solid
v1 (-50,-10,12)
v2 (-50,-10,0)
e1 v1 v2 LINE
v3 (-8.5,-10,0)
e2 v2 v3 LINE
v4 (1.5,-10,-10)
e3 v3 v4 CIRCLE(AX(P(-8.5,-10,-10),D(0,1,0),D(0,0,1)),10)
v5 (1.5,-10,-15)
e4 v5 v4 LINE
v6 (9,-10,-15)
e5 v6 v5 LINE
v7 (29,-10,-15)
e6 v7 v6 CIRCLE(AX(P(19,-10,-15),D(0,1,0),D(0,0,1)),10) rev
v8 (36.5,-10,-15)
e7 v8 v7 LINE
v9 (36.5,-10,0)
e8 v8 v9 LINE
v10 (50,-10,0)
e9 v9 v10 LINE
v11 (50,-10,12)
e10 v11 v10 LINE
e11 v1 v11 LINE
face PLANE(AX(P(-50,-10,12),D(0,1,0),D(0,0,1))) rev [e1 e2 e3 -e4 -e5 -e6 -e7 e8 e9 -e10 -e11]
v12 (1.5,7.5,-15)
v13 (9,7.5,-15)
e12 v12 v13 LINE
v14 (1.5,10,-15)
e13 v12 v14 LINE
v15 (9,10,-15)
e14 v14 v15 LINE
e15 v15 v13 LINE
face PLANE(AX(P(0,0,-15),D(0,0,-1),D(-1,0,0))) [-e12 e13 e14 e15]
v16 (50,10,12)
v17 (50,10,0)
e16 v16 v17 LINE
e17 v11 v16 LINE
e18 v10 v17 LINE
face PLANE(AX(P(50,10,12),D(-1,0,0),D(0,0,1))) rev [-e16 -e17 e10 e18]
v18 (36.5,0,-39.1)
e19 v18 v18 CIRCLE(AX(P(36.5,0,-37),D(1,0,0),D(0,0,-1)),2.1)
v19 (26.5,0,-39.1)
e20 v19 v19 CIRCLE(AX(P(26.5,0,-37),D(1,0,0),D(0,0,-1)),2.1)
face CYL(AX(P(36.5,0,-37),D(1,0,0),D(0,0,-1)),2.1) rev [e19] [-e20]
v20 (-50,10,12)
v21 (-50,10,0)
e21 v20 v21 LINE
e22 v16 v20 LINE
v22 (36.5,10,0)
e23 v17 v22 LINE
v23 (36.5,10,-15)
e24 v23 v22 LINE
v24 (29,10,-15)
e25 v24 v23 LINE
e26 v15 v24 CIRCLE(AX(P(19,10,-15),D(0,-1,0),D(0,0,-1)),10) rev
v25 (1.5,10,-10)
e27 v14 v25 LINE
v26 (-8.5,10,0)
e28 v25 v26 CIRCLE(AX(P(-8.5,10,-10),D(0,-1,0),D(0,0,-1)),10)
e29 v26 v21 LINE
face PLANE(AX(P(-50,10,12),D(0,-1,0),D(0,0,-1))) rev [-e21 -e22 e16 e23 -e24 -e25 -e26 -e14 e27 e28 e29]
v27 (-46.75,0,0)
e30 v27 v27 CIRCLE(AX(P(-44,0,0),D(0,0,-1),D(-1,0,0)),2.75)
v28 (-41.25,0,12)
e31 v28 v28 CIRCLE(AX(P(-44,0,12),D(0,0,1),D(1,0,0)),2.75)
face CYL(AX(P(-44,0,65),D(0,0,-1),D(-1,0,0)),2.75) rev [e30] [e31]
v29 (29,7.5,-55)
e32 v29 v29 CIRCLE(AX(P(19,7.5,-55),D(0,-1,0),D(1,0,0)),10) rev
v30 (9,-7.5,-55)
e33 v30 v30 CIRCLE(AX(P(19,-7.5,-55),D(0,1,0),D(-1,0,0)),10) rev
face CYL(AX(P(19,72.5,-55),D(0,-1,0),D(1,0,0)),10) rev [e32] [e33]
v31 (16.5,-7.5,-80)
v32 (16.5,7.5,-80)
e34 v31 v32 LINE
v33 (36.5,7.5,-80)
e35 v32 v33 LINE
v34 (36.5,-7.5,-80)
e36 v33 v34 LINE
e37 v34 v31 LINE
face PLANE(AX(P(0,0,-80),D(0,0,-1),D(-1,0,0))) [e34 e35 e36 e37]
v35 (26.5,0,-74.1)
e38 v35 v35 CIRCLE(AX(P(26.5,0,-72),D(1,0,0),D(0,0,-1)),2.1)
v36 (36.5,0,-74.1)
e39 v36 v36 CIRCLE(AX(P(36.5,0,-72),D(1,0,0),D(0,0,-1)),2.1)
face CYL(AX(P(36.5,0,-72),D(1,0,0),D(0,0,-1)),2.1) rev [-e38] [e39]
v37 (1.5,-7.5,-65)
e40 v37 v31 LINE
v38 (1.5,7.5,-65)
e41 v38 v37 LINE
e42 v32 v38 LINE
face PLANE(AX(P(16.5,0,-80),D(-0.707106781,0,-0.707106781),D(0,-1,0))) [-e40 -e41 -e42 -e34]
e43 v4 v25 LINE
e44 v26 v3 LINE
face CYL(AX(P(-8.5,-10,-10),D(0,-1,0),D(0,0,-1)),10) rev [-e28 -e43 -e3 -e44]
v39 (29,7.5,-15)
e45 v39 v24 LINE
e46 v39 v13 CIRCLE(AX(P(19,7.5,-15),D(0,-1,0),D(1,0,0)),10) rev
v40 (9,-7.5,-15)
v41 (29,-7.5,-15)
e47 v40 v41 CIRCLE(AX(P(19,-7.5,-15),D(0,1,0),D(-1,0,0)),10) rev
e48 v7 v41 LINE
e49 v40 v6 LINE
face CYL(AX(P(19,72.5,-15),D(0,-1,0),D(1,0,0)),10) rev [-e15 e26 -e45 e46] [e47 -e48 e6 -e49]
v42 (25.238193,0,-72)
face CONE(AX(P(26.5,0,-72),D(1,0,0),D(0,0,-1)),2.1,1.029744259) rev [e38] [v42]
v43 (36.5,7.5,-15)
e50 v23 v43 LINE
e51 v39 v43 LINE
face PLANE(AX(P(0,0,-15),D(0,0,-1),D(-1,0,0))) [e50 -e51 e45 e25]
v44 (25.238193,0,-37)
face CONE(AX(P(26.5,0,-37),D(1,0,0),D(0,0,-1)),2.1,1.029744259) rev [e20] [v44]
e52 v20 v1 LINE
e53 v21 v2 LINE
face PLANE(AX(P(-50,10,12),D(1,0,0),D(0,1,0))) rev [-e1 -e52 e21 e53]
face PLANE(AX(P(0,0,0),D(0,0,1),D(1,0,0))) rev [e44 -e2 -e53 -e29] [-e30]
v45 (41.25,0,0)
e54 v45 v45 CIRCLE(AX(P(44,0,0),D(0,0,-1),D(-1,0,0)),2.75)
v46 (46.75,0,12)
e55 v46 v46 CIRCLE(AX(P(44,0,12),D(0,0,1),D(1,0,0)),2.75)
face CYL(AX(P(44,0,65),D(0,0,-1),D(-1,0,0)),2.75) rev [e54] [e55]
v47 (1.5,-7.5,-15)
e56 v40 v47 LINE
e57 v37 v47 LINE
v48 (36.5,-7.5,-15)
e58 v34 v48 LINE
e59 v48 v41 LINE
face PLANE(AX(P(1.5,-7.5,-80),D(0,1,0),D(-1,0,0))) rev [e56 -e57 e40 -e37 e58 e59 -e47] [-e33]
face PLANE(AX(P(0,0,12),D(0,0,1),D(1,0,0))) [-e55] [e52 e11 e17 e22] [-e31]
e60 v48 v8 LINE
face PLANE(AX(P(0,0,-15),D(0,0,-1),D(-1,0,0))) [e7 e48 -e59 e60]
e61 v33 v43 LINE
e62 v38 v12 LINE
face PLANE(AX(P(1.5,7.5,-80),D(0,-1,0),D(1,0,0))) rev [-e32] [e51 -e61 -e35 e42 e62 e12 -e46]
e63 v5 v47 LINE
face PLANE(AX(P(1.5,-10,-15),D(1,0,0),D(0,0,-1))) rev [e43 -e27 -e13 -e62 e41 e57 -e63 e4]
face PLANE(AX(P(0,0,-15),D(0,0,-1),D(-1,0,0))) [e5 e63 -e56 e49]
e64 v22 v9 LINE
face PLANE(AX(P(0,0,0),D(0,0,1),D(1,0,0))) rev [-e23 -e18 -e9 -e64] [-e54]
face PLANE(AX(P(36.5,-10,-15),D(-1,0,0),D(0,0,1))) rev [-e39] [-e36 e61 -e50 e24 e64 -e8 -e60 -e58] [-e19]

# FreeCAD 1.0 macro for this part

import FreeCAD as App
import Part
import Sketcher
from FreeCAD import Vector
Q = App.Units.Quantity


def edges_at(feature, points):
    """Names of the edges that pass closest to the given points."""
    edges = feature.Shape.Edges
    near = lambda p: min(range(len(edges)), key=lambda i: edges[i].distToShape(Part.Vertex(*p))[0])
    return sorted({f"Edge{near(p) + 1}" for p in points})


def add_polygon(sketch, points):
    """Adds a closed chain of lines whose ends are joined by coincident constraints."""
    first, n = sketch.GeometryCount, len(points)
    for a, b in zip(points, points[1:] + points[:1]):
        sketch.addGeometry(Part.LineSegment(App.Vector(*a, 0), App.Vector(*b, 0)), False)
    for i in range(n):
        sketch.addConstraint(Sketcher.Constraint("Coincident", first + i, 2, first + (i + 1) % n, 1))

doc = App.newDocument("Part")
params = doc.addObject("Spreadsheet::Sheet", "Params")
for row, (alias, value) in enumerate([
    ("sketch1_width", "100 mm"),
    ("sketch1_height", "20 mm"),
    ("pad1_length", "12 mm"),
    ("sketch2_width", "35 mm"),
    ("sketch2_height", "20 mm"),
    ("pad2_length", "15 mm"),
    ("sketch3_width", "35 mm"),
    ("sketch3_height", "15 mm"),
    ("pad3_length", "65 mm"),
    ("fillet_radius", "10 mm"),
    ("chamfer_size", "15 mm"),
    ("sketch4_diameter", "20 mm"),
    ("sketch5_diameter", "4.2 mm"),
    ("hole_diameter", "4.2 mm"),
    ("hole_depth", "10 mm"),
    ("sketch6_diameter", "5.5 mm"),
    ("pocket2_length", "65 mm"),
], start=1):
    params.set(f"A{row}", alias)
    params.set(f"B{row}", "=" + value)
    params.setAlias(f"B{row}", alias)

body = doc.addObject("PartDesign::Body", "Body")

# Sketch on XY plane
sketch1 = body.newObject("Sketcher::SketchObject", "Sketch")
sketch1.AttachmentSupport = (doc.getObject("XY_Plane"), [""])
sketch1.MapMode = "FlatFace"
add_polygon(sketch1, [(-50, 10), (-50, -10), (50, -10), (50, 10)])  # lines 0-3
sketch1.addConstraint(Sketcher.Constraint("Vertical", 0))
sketch1.addConstraint(Sketcher.Constraint("Horizontal", 1))
sketch1.addConstraint(Sketcher.Constraint("Vertical", 2))
sketch1.addConstraint(Sketcher.Constraint("Horizontal", 3))
sketch1.addConstraint(Sketcher.Constraint("Symmetric", 0, 2, 2, 2, -1, 1))
sketch1.addConstraint(Sketcher.Constraint("DistanceX", 1, 1, 1, 2, Q("100 mm")))
sketch1.addConstraint(Sketcher.Constraint("DistanceY", 0, 2, 0, 1, Q("20 mm")))
sketch1.setExpression("Constraints[9]", "Params.sketch1_width")
sketch1.setExpression("Constraints[10]", "Params.sketch1_height")
pad1 = body.newObject("PartDesign::Pad", "Pad")
pad1.Profile = sketch1
pad1.setExpression("Length", "Params.pad1_length")

# Sketch on XY plane
sketch2 = body.newObject("Sketcher::SketchObject", "Sketch001")
sketch2.AttachmentSupport = (doc.getObject("XY_Plane"), [""])
sketch2.MapMode = "FlatFace"
add_polygon(sketch2, [(36, 10), (36, -10), (2, -10), (2, 10)])  # lines 0-3
sketch2.addConstraint(Sketcher.Constraint("Vertical", 0))
sketch2.addConstraint(Sketcher.Constraint("Horizontal", 1))
sketch2.addConstraint(Sketcher.Constraint("Vertical", 2))
sketch2.addConstraint(Sketcher.Constraint("Horizontal", 3))
sketch2.addConstraint(Sketcher.Constraint("DistanceX", 1, 2, 1, 1, Q("35 mm")))
sketch2.addConstraint(Sketcher.Constraint("DistanceY", 0, 2, 0, 1, Q("20 mm")))
sketch2.addConstraint(Sketcher.Constraint("DistanceY", 0, 2, -1, 1, Q("10 mm")))
sketch2.addConstraint(Sketcher.Constraint("DistanceX", -1, 1, 0, 2, Q("36.5 mm")))
sketch2.setExpression("Constraints[8]", "Params.sketch2_width")
sketch2.setExpression("Constraints[9]", "Params.sketch2_height")
pad2 = body.newObject("PartDesign::Pad", "Pad001")
pad2.Profile = sketch2
pad2.setExpression("Length", "Params.pad2_length")
pad2.Reversed = True

# Sketch on XY plane
sketch3 = body.newObject("Sketcher::SketchObject", "Sketch002")
sketch3.AttachmentSupport = (doc.getObject("XY_Plane"), [""])
sketch3.MapMode = "FlatFace"
sketch3.AttachmentOffset = App.Placement(Vector(0, 0, -15), App.Rotation())
add_polygon(sketch3, [(36, 8), (36, -8), (2, -8), (2, 8)])  # lines 0-3
sketch3.addConstraint(Sketcher.Constraint("Vertical", 0))
sketch3.addConstraint(Sketcher.Constraint("Horizontal", 1))
sketch3.addConstraint(Sketcher.Constraint("Vertical", 2))
sketch3.addConstraint(Sketcher.Constraint("Horizontal", 3))
sketch3.addConstraint(Sketcher.Constraint("DistanceX", 1, 2, 1, 1, Q("35 mm")))
sketch3.addConstraint(Sketcher.Constraint("DistanceY", 0, 2, 0, 1, Q("15 mm")))
sketch3.addConstraint(Sketcher.Constraint("DistanceX", -1, 1, 0, 2, Q("36.5 mm")))
sketch3.addConstraint(Sketcher.Constraint("DistanceY", 0, 2, -1, 1, Q("7.5 mm")))
sketch3.setExpression("Constraints[8]", "Params.sketch3_width")
sketch3.setExpression("Constraints[9]", "Params.sketch3_height")
pad3 = body.newObject("PartDesign::Pad", "Pad002")
pad3.Profile = sketch3
pad3.setExpression("Length", "Params.pad3_length")
pad3.Reversed = True
doc.recompute()

fillet = body.newObject("PartDesign::Fillet", "Fillet")
fillet.Base = (pad3, edges_at(pad3, [(1.5, 0, 0)]))
fillet.setExpression("Radius", "Params.fillet_radius")
doc.recompute()

chamfer = body.newObject("PartDesign::Chamfer", "Chamfer")
chamfer.Base = (fillet, edges_at(fillet, [(1.5, 0, -80)]))
chamfer.setExpression("Size", "Params.chamfer_size")

# Sketch on XZ plane
sketch4 = body.newObject("Sketcher::SketchObject", "Sketch003")
sketch4.AttachmentSupport = (doc.getObject("XZ_Plane"), [""])
sketch4.MapMode = "FlatFace"
sketch4.AttachmentOffset = App.Placement(Vector(0, 0, -7.5), App.Rotation())
sketch4.addGeometry(Part.Circle(Vector(19, -15, 0), Vector(0, 0, 1), 10), False)
sketch4.addGeometry(Part.Circle(Vector(19, -55, 0), Vector(0, 0, 1), 10), False)
sketch4.addConstraint(Sketcher.Constraint("Equal", 0, 1))
sketch4.addConstraint(Sketcher.Constraint("Vertical", 0, 3, 1, 3))
sketch4.addConstraint(Sketcher.Constraint("Diameter", 0, Q("20 mm")))
sketch4.addConstraint(Sketcher.Constraint("DistanceX", -1, 1, 0, 3, Q("19 mm")))
sketch4.addConstraint(Sketcher.Constraint("DistanceY", 0, 3, -1, 1, Q("15 mm")))
sketch4.addConstraint(Sketcher.Constraint("DistanceY", 1, 3, -1, 1, Q("55 mm")))
sketch4.setExpression("Constraints[2]", "Params.sketch4_diameter")
pocket1 = body.newObject("PartDesign::Pocket", "Pocket")
pocket1.Profile = sketch4
pocket1.Type = "ThroughAll"
pocket1.Midplane = True

# Sketch on YZ plane
sketch5 = body.newObject("Sketcher::SketchObject", "Sketch004")
sketch5.AttachmentSupport = (doc.getObject("YZ_Plane"), [""])
sketch5.MapMode = "FlatFace"
sketch5.AttachmentOffset = App.Placement(Vector(0, 0, 36.5), App.Rotation())
sketch5.addGeometry(Part.Circle(Vector(0, -72, 0), Vector(0, 0, 1), 2.1), False)
sketch5.addGeometry(Part.Circle(Vector(0, -37, 0), Vector(0, 0, 1), 2.1), False)
sketch5.addConstraint(Sketcher.Constraint("Equal", 0, 1))
sketch5.addConstraint(Sketcher.Constraint("PointOnObject", 0, 3, -2))
sketch5.addConstraint(Sketcher.Constraint("PointOnObject", 1, 3, -2))
sketch5.addConstraint(Sketcher.Constraint("Diameter", 0, Q("4.2 mm")))
sketch5.addConstraint(Sketcher.Constraint("DistanceY", 0, 3, -1, 1, Q("72 mm")))
sketch5.addConstraint(Sketcher.Constraint("DistanceY", 1, 3, -1, 1, Q("37 mm")))
sketch5.setExpression("Constraints[3]", "Params.sketch5_diameter")
doc.recompute()
hole = body.newObject("PartDesign::Hole", "Hole")
hole.Profile = sketch5
hole.ThreadType = "None"
hole.setExpression("Diameter", "Params.hole_diameter")
hole.DepthType = "Dimension"
hole.setExpression("Depth", "Params.hole_depth")
hole.DrillPoint = "Angled"
hole.DrillPointAngle = 118

# Sketch on XY plane
sketch6 = body.newObject("Sketcher::SketchObject", "Sketch005")
sketch6.AttachmentSupport = (doc.getObject("XY_Plane"), [""])
sketch6.MapMode = "FlatFace"
sketch6.addGeometry(Part.Circle(Vector(-44, 0, 0), Vector(0, 0, 1), 2.8), False)
sketch6.addGeometry(Part.Circle(Vector(44, 0, 0), Vector(0, 0, 1), 2.8), False)
sketch6.addConstraint(Sketcher.Constraint("Equal", 0, 1))
sketch6.addConstraint(Sketcher.Constraint("Symmetric", 0, 3, 1, 3, -1, 1))
sketch6.addConstraint(Sketcher.Constraint("PointOnObject", 0, 3, -1))
sketch6.addConstraint(Sketcher.Constraint("Diameter", 0, Q("5.5 mm")))
sketch6.addConstraint(Sketcher.Constraint("DistanceX", 0, 3, -1, 1, Q("44 mm")))
sketch6.setExpression("Constraints[3]", "Params.sketch6_diameter")
pocket2 = body.newObject("PartDesign::Pocket", "Pocket001")
pocket2.Profile = sketch6
pocket2.setExpression("Length", "Params.pocket2_length")
pocket2.Reversed = True

doc.recompute()
